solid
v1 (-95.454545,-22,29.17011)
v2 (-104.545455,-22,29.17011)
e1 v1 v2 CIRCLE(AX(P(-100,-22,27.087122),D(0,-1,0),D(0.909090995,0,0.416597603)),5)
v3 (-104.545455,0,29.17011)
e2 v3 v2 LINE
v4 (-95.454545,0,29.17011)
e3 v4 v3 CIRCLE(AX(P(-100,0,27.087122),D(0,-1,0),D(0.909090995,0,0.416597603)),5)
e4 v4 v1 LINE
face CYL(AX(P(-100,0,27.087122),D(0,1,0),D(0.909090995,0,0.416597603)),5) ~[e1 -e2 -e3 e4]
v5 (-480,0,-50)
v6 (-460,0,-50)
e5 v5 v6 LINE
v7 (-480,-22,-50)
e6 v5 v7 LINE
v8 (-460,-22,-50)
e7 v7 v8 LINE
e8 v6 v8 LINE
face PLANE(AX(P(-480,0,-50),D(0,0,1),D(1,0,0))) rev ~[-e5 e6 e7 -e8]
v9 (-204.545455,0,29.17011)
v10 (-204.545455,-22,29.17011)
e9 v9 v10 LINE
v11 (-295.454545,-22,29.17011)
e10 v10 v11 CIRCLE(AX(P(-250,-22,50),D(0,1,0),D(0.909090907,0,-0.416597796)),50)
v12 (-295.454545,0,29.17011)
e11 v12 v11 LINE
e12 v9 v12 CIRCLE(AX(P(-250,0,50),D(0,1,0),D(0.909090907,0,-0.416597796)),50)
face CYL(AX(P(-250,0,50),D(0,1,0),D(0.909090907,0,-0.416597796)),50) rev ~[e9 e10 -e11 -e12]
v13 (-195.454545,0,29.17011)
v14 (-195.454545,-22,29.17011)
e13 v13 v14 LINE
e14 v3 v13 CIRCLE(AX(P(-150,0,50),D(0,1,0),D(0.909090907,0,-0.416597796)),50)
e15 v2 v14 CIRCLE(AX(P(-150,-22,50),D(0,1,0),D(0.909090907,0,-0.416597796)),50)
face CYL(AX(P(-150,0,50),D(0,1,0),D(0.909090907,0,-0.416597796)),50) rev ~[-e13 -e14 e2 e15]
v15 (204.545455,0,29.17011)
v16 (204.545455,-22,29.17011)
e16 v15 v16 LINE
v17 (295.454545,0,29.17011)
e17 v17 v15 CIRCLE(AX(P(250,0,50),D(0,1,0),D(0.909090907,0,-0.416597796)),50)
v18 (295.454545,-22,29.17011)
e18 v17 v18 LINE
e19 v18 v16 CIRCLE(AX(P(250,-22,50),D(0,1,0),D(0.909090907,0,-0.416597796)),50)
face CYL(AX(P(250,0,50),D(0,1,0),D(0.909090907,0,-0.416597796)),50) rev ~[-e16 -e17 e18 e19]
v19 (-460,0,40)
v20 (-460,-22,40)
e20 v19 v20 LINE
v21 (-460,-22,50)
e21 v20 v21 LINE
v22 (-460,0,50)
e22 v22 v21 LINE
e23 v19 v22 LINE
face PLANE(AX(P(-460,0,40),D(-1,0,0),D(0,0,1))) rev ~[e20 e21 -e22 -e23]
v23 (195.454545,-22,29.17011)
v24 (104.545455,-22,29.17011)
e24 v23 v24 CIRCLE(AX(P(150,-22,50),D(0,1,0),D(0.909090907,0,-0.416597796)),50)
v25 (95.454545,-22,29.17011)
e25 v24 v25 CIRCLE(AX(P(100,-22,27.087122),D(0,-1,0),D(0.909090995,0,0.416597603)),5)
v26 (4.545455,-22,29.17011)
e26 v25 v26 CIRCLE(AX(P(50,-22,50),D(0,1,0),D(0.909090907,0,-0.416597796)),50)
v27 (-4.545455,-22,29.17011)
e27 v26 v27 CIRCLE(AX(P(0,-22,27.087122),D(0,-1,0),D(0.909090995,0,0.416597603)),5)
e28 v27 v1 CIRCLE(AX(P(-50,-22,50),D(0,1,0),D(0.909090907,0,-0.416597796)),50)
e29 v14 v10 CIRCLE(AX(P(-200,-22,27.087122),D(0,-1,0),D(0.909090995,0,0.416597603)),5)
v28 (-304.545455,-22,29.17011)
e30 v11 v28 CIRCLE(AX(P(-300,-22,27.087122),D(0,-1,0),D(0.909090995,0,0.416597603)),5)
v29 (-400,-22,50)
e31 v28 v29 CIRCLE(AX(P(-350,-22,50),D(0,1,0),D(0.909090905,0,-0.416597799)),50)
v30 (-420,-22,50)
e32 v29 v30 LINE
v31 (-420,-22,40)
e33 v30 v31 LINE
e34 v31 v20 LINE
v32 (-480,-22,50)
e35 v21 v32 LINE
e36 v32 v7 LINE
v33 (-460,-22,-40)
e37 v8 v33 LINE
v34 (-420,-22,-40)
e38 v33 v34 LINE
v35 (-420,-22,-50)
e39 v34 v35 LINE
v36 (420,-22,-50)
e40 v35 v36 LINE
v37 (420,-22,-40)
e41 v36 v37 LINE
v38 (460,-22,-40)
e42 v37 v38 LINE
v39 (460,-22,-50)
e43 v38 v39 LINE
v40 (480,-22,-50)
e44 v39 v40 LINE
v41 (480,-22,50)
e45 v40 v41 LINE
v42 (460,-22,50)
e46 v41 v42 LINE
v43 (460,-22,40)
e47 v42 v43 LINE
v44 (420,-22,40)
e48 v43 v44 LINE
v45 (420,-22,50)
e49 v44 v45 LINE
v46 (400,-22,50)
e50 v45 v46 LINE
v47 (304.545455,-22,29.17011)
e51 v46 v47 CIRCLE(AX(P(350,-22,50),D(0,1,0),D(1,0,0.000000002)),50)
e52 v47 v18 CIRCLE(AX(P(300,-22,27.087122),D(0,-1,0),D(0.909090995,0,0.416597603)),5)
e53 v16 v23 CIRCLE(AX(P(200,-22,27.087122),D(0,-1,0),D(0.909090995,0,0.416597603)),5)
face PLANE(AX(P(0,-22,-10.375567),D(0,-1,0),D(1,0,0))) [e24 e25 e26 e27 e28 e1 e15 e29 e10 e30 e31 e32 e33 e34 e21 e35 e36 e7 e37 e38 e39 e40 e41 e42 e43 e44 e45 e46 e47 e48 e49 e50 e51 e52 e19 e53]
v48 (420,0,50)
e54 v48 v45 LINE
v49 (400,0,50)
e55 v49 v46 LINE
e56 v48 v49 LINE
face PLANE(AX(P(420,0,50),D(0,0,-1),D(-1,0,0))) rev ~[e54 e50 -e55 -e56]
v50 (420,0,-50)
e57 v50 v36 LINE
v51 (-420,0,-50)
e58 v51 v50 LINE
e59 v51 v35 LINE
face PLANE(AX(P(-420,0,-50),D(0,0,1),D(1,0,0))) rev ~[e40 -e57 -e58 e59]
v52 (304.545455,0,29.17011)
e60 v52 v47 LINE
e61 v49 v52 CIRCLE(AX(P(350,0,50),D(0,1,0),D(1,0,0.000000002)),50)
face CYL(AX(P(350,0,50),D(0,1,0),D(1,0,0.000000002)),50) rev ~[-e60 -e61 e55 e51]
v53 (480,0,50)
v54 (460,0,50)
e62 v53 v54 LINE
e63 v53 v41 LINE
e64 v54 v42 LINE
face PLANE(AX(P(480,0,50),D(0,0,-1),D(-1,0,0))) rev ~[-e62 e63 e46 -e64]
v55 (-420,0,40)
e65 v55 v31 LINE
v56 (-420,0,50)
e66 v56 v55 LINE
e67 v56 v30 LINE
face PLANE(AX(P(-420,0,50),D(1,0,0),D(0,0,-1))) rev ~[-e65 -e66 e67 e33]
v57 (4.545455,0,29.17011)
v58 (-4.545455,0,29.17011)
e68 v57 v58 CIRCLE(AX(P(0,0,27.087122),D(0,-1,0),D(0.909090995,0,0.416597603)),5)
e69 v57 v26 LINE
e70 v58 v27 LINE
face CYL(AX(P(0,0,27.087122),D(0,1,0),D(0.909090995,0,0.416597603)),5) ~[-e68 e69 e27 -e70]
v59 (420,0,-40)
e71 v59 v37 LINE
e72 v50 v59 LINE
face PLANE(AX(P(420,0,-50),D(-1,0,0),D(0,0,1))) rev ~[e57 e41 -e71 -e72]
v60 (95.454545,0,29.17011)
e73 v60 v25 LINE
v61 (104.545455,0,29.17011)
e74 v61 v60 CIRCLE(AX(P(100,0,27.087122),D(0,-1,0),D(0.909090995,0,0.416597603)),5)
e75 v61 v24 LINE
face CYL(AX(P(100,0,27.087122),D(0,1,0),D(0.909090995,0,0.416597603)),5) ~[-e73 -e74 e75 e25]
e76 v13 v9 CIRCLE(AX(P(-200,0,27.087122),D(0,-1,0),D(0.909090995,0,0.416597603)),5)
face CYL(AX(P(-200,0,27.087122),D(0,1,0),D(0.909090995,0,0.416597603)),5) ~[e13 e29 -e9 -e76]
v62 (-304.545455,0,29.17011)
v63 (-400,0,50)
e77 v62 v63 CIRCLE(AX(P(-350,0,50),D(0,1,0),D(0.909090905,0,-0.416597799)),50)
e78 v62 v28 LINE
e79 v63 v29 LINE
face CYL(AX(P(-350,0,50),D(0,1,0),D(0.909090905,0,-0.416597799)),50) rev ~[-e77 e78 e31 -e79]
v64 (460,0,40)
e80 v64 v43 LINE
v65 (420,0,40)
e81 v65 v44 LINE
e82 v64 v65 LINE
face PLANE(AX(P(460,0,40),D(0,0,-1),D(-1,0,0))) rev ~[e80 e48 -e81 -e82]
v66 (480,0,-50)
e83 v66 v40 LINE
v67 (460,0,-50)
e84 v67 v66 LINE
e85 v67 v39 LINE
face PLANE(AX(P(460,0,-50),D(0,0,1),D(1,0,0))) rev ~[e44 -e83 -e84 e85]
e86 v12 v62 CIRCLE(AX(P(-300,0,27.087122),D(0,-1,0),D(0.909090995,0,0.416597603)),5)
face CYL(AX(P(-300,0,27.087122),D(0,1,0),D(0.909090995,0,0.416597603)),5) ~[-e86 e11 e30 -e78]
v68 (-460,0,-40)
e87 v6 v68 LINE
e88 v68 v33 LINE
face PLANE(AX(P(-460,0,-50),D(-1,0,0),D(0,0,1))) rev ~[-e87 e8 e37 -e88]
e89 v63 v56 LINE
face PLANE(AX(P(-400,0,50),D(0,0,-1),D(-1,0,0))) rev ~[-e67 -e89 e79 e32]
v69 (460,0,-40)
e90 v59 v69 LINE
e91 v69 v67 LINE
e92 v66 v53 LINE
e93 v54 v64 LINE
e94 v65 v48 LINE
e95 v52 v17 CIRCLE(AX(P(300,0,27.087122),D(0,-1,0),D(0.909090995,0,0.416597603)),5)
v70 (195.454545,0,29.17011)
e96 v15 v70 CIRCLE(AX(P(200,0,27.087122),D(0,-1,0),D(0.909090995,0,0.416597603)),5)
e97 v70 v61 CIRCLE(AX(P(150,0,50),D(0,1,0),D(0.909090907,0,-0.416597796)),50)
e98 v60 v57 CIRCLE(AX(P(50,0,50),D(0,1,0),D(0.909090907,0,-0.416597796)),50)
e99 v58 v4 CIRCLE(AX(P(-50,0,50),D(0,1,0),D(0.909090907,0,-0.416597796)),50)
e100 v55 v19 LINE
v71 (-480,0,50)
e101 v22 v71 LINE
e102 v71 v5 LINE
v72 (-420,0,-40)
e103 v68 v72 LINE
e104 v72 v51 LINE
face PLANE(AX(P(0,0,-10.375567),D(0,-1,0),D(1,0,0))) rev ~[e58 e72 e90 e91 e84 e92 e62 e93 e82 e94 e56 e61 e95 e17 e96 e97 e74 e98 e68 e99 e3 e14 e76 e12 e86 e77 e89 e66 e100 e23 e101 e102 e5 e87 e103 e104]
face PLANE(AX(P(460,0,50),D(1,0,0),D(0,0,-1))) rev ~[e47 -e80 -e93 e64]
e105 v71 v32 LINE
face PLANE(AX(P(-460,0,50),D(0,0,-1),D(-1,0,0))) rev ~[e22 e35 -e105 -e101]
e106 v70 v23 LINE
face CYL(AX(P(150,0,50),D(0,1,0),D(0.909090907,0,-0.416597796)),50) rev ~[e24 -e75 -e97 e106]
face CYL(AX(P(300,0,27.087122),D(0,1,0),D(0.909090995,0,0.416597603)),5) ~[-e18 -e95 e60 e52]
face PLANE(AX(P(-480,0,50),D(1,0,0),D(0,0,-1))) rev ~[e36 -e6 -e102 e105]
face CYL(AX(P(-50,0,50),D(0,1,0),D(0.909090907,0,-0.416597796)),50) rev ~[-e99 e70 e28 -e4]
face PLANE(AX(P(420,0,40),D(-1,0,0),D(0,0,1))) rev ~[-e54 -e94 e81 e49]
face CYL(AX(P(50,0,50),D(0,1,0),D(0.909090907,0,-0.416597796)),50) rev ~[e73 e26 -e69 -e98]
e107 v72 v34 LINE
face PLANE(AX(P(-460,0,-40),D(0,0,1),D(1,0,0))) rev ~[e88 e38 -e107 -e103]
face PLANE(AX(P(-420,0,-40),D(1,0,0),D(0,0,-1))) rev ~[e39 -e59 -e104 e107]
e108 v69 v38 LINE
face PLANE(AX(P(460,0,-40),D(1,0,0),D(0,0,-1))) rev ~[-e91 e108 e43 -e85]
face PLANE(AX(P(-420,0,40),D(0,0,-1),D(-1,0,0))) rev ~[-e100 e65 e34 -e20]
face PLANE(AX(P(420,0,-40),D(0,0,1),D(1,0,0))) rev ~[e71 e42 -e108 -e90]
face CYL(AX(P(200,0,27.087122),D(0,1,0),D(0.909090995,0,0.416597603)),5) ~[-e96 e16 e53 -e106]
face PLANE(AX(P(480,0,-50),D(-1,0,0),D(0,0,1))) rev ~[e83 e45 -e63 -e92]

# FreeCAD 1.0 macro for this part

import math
import FreeCAD as App
import Part
import Sketcher
from FreeCAD import Vector
Q = App.Units.Quantity

doc = App.newDocument("Part")
params = doc.addObject("Spreadsheet::Sheet", "Params")
for row, (alias, value) in enumerate([
    ("sketch1_radius", "50 mm"),
    ("sketch1_radius2", "5 mm"),
    ("sketch1_width", "20 mm"),
    ("sketch1_width2", "40 mm"),
    ("sketch1_width3", "840 mm"),
    ("pad1_length", "22 mm"),
], start=1):
    params.set(f"A{row}", alias)
    params.set(f"B{row}", "=" + value)
    params.setAlias(f"B{row}", alias)

body = doc.addObject("PartDesign::Body", "Body")

# Sketch on XZ plane
sketch1 = body.newObject("Sketcher::SketchObject", "Sketch")
sketch1.AttachmentSupport = (doc.getObject("XZ_Plane"), [""])
sketch1.MapMode = "FlatFace"
sketch1.addGeometry(Part.LineSegment(Vector(460, -50, 0), Vector(480, -50, 0)), False)
sketch1.addGeometry(Part.LineSegment(Vector(480, -50, 0), Vector(480, 50, 0)), False)
sketch1.addGeometry(Part.LineSegment(Vector(480, 50, 0), Vector(460, 50, 0)), False)
sketch1.addGeometry(Part.LineSegment(Vector(460, 50, 0), Vector(460, 40, 0)), False)
sketch1.addGeometry(Part.LineSegment(Vector(460, 40, 0), Vector(420, 40, 0)), False)
sketch1.addGeometry(Part.LineSegment(Vector(420, 40, 0), Vector(420, 50, 0)), False)
sketch1.addGeometry(Part.LineSegment(Vector(420, 50, 0), Vector(400, 50, 0)), False)
sketch1.addGeometry(Part.ArcOfCircle(Part.Circle(Vector(350, 50, 0), Vector(0, 0, 1), 50), math.radians(-155.380022), math.radians(0)), False)
sketch1.addGeometry(Part.ArcOfCircle(Part.Circle(Vector(300, 27.087122, 0), Vector(0, 0, 1), 5), math.radians(24.619966), math.radians(155.380034)), False)
sketch1.addGeometry(Part.ArcOfCircle(Part.Circle(Vector(250, 50, 0), Vector(0, 0, 1), 50), math.radians(-155.380022), math.radians(-24.619978)), False)
sketch1.addGeometry(Part.ArcOfCircle(Part.Circle(Vector(200, 27.087122, 0), Vector(0, 0, 1), 5), math.radians(24.619966), math.radians(155.380034)), False)
sketch1.addGeometry(Part.ArcOfCircle(Part.Circle(Vector(150, 50, 0), Vector(0, 0, 1), 50), math.radians(-155.380022), math.radians(-24.619978)), False)
sketch1.addGeometry(Part.ArcOfCircle(Part.Circle(Vector(100, 27.087122, 0), Vector(0, 0, 1), 5), math.radians(24.619966), math.radians(155.380034)), False)
sketch1.addGeometry(Part.ArcOfCircle(Part.Circle(Vector(50, 50, 0), Vector(0, 0, 1), 50), math.radians(-155.380022), math.radians(-24.619978)), False)
sketch1.addGeometry(Part.ArcOfCircle(Part.Circle(Vector(0, 27.087122, 0), Vector(0, 0, 1), 5), math.radians(24.619966), math.radians(155.380034)), False)
sketch1.addGeometry(Part.ArcOfCircle(Part.Circle(Vector(-50, 50, 0), Vector(0, 0, 1), 50), math.radians(-155.380022), math.radians(-24.619978)), False)
sketch1.addGeometry(Part.ArcOfCircle(Part.Circle(Vector(-100, 27.087122, 0), Vector(0, 0, 1), 5), math.radians(24.619966), math.radians(155.380034)), False)
sketch1.addGeometry(Part.ArcOfCircle(Part.Circle(Vector(-150, 50, 0), Vector(0, 0, 1), 50), math.radians(-155.380022), math.radians(-24.619978)), False)
sketch1.addGeometry(Part.ArcOfCircle(Part.Circle(Vector(-200, 27.087122, 0), Vector(0, 0, 1), 5), math.radians(24.619966), math.radians(155.380034)), False)
sketch1.addGeometry(Part.ArcOfCircle(Part.Circle(Vector(-250, 50, 0), Vector(0, 0, 1), 50), math.radians(-155.380022), math.radians(-24.619978)), False)
sketch1.addGeometry(Part.ArcOfCircle(Part.Circle(Vector(-300, 27.087122, 0), Vector(0, 0, 1), 5), math.radians(24.619966), math.radians(155.380034)), False)
sketch1.addGeometry(Part.ArcOfCircle(Part.Circle(Vector(-350, 50, 0), Vector(0, 0, 1), 50), math.radians(180), math.radians(335.380022)), False)
sketch1.addGeometry(Part.LineSegment(Vector(-400, 50, 0), Vector(-420, 50, 0)), False)
sketch1.addGeometry(Part.LineSegment(Vector(-420, 50, 0), Vector(-420, 40, 0)), False)
sketch1.addGeometry(Part.LineSegment(Vector(-420, 40, 0), Vector(-460, 40, 0)), False)
sketch1.addGeometry(Part.LineSegment(Vector(-460, 40, 0), Vector(-460, 50, 0)), False)
sketch1.addGeometry(Part.LineSegment(Vector(-460, 50, 0), Vector(-480, 50, 0)), False)
sketch1.addGeometry(Part.LineSegment(Vector(-480, 50, 0), Vector(-480, -50, 0)), False)
sketch1.addGeometry(Part.LineSegment(Vector(-480, -50, 0), Vector(-460, -50, 0)), False)
sketch1.addGeometry(Part.LineSegment(Vector(-460, -50, 0), Vector(-460, -40, 0)), False)
sketch1.addGeometry(Part.LineSegment(Vector(-460, -40, 0), Vector(-420, -40, 0)), False)
sketch1.addGeometry(Part.LineSegment(Vector(-420, -40, 0), Vector(-420, -50, 0)), False)
sketch1.addGeometry(Part.LineSegment(Vector(-420, -50, 0), Vector(420, -50, 0)), False)
sketch1.addGeometry(Part.LineSegment(Vector(420, -50, 0), Vector(420, -40, 0)), False)
sketch1.addGeometry(Part.LineSegment(Vector(420, -40, 0), Vector(460, -40, 0)), False)
sketch1.addGeometry(Part.LineSegment(Vector(460, -40, 0), Vector(460, -50, 0)), False)
sketch1.addConstraint(Sketcher.Constraint("Coincident", 0, 2, 1, 1))
sketch1.addConstraint(Sketcher.Constraint("Coincident", 1, 2, 2, 1))
sketch1.addConstraint(Sketcher.Constraint("Coincident", 2, 2, 3, 1))
sketch1.addConstraint(Sketcher.Constraint("Coincident", 3, 2, 4, 1))
sketch1.addConstraint(Sketcher.Constraint("Coincident", 4, 2, 5, 1))
sketch1.addConstraint(Sketcher.Constraint("Coincident", 5, 2, 6, 1))
sketch1.addConstraint(Sketcher.Constraint("Coincident", 6, 2, 7, 2))
sketch1.addConstraint(Sketcher.Constraint("Tangent", 7, 1, 8, 1))
sketch1.addConstraint(Sketcher.Constraint("Tangent", 8, 2, 9, 2))
sketch1.addConstraint(Sketcher.Constraint("Tangent", 9, 1, 10, 1))
sketch1.addConstraint(Sketcher.Constraint("Tangent", 10, 2, 11, 2))
sketch1.addConstraint(Sketcher.Constraint("Tangent", 11, 1, 12, 1))
sketch1.addConstraint(Sketcher.Constraint("Tangent", 12, 2, 13, 2))
sketch1.addConstraint(Sketcher.Constraint("Tangent", 13, 1, 14, 1))
sketch1.addConstraint(Sketcher.Constraint("Tangent", 14, 2, 15, 2))
sketch1.addConstraint(Sketcher.Constraint("Tangent", 15, 1, 16, 1))
sketch1.addConstraint(Sketcher.Constraint("Tangent", 16, 2, 17, 2))
sketch1.addConstraint(Sketcher.Constraint("Tangent", 17, 1, 18, 1))
sketch1.addConstraint(Sketcher.Constraint("Tangent", 18, 2, 19, 2))
sketch1.addConstraint(Sketcher.Constraint("Tangent", 19, 1, 20, 1))
sketch1.addConstraint(Sketcher.Constraint("Tangent", 20, 2, 21, 2))
sketch1.addConstraint(Sketcher.Constraint("Coincident", 21, 1, 22, 1))
sketch1.addConstraint(Sketcher.Constraint("Coincident", 22, 2, 23, 1))
sketch1.addConstraint(Sketcher.Constraint("Coincident", 23, 2, 24, 1))
sketch1.addConstraint(Sketcher.Constraint("Coincident", 24, 2, 25, 1))
sketch1.addConstraint(Sketcher.Constraint("Coincident", 25, 2, 26, 1))
sketch1.addConstraint(Sketcher.Constraint("Coincident", 26, 2, 27, 1))
sketch1.addConstraint(Sketcher.Constraint("Coincident", 27, 2, 28, 1))
sketch1.addConstraint(Sketcher.Constraint("Coincident", 28, 2, 29, 1))
sketch1.addConstraint(Sketcher.Constraint("Coincident", 29, 2, 30, 1))
sketch1.addConstraint(Sketcher.Constraint("Coincident", 30, 2, 31, 1))
sketch1.addConstraint(Sketcher.Constraint("Coincident", 31, 2, 32, 1))
sketch1.addConstraint(Sketcher.Constraint("Coincident", 32, 2, 33, 1))
sketch1.addConstraint(Sketcher.Constraint("Coincident", 33, 2, 34, 1))
sketch1.addConstraint(Sketcher.Constraint("Coincident", 34, 2, 35, 1))
sketch1.addConstraint(Sketcher.Constraint("Coincident", 35, 2, 0, 1))
sketch1.addConstraint(Sketcher.Constraint("Horizontal", 0))
sketch1.addConstraint(Sketcher.Constraint("Vertical", 1))
sketch1.addConstraint(Sketcher.Constraint("Horizontal", 2))
sketch1.addConstraint(Sketcher.Constraint("Vertical", 3))
sketch1.addConstraint(Sketcher.Constraint("Horizontal", 4))
sketch1.addConstraint(Sketcher.Constraint("Vertical", 5))
sketch1.addConstraint(Sketcher.Constraint("Horizontal", 6))
sketch1.addConstraint(Sketcher.Constraint("Horizontal", 22))
sketch1.addConstraint(Sketcher.Constraint("Vertical", 23))
sketch1.addConstraint(Sketcher.Constraint("Horizontal", 24))
sketch1.addConstraint(Sketcher.Constraint("Vertical", 25))
sketch1.addConstraint(Sketcher.Constraint("Horizontal", 26))
sketch1.addConstraint(Sketcher.Constraint("Vertical", 27))
sketch1.addConstraint(Sketcher.Constraint("Horizontal", 28))
sketch1.addConstraint(Sketcher.Constraint("Vertical", 29))
sketch1.addConstraint(Sketcher.Constraint("Horizontal", 30))
sketch1.addConstraint(Sketcher.Constraint("Vertical", 31))
sketch1.addConstraint(Sketcher.Constraint("Horizontal", 32))
sketch1.addConstraint(Sketcher.Constraint("Vertical", 33))
sketch1.addConstraint(Sketcher.Constraint("Horizontal", 34))
sketch1.addConstraint(Sketcher.Constraint("Vertical", 35))
sketch1.addConstraint(Sketcher.Constraint("Equal", 7, 9))
sketch1.addConstraint(Sketcher.Constraint("Equal", 8, 10))
sketch1.addConstraint(Sketcher.Constraint("Equal", 9, 11))
sketch1.addConstraint(Sketcher.Constraint("Equal", 10, 12))
sketch1.addConstraint(Sketcher.Constraint("Equal", 11, 13))
sketch1.addConstraint(Sketcher.Constraint("Equal", 12, 14))
sketch1.addConstraint(Sketcher.Constraint("Equal", 13, 15))
sketch1.addConstraint(Sketcher.Constraint("Equal", 14, 16))
sketch1.addConstraint(Sketcher.Constraint("Equal", 15, 17))
sketch1.addConstraint(Sketcher.Constraint("Equal", 16, 18))
sketch1.addConstraint(Sketcher.Constraint("Equal", 17, 19))
sketch1.addConstraint(Sketcher.Constraint("Equal", 18, 20))
sketch1.addConstraint(Sketcher.Constraint("Equal", 19, 21))
sketch1.addConstraint(Sketcher.Constraint("Symmetric", 0, 2, 26, 2, -1, 1))
sketch1.addConstraint(Sketcher.Constraint("Symmetric", 2, 2, 28, 2, -1, 1))
sketch1.addConstraint(Sketcher.Constraint("Symmetric", 4, 2, 30, 2, -1, 1))
sketch1.addConstraint(Sketcher.Constraint("Symmetric", 22, 2, 32, 2, -1, 1))
sketch1.addConstraint(Sketcher.Constraint("Symmetric", 24, 2, 34, 2, -1, 1))
sketch1.addConstraint(Sketcher.Constraint("Symmetric", 13, 3, 15, 3, -2))
sketch1.addConstraint(Sketcher.Constraint("Symmetric", 11, 3, 17, 3, -2))
sketch1.addConstraint(Sketcher.Constraint("Symmetric", 9, 3, 19, 3, -2))
sketch1.addConstraint(Sketcher.Constraint("Symmetric", 7, 3, 21, 3, -2))
sketch1.addConstraint(Sketcher.Constraint("Symmetric", 5, 2, 22, 2, -2))
sketch1.addConstraint(Sketcher.Constraint("Symmetric", 3, 2, 24, 2, -2))
sketch1.addConstraint(Sketcher.Constraint("Horizontal", 7, 3, 9, 3))
sketch1.addConstraint(Sketcher.Constraint("Horizontal", 8, 3, 10, 3))
sketch1.addConstraint(Sketcher.Constraint("Horizontal", 9, 3, 11, 3))
sketch1.addConstraint(Sketcher.Constraint("Horizontal", 10, 3, 12, 3))
sketch1.addConstraint(Sketcher.Constraint("Horizontal", 11, 3, 13, 3))
sketch1.addConstraint(Sketcher.Constraint("Horizontal", 12, 3, 14, 3))
sketch1.addConstraint(Sketcher.Constraint("Horizontal", 21, 3, 1, 2))
sketch1.addConstraint(Sketcher.Constraint("Horizontal", 2, 2, 5, 2))
sketch1.addConstraint(Sketcher.Constraint("Horizontal", 22, 2, 25, 2))
sketch1.addConstraint(Sketcher.Constraint("Equal", 2, 6))
sketch1.addConstraint(Sketcher.Constraint("Radius", 7, Q("50 mm")))
sketch1.addConstraint(Sketcher.Constraint("Radius", 8, Q("5 mm")))
sketch1.addConstraint(Sketcher.Constraint("DistanceX", 0, 1, 0, 2, Q("20 mm")))
sketch1.addConstraint(Sketcher.Constraint("DistanceX", 4, 2, 4, 1, Q("40 mm")))
sketch1.addConstraint(Sketcher.Constraint("DistanceX", 32, 1, 32, 2, Q("840 mm")))
sketch1.addConstraint(Sketcher.Constraint("DistanceY", 1, 1, 1, 2, Q("100 mm")))
sketch1.addConstraint(Sketcher.Constraint("DistanceY", 3, 2, 3, 1, Q("10 mm")))
sketch1.setExpression("Constraints[91]", "Params.sketch1_radius")
sketch1.setExpression("Constraints[92]", "Params.sketch1_radius2")
sketch1.setExpression("Constraints[93]", "Params.sketch1_width")
sketch1.setExpression("Constraints[94]", "Params.sketch1_width2")
sketch1.setExpression("Constraints[95]", "Params.sketch1_width3")
pad1 = body.newObject("PartDesign::Pad", "Pad")
pad1.Profile = sketch1
pad1.setExpression("Length", "Params.pad1_length")

doc.recompute()
